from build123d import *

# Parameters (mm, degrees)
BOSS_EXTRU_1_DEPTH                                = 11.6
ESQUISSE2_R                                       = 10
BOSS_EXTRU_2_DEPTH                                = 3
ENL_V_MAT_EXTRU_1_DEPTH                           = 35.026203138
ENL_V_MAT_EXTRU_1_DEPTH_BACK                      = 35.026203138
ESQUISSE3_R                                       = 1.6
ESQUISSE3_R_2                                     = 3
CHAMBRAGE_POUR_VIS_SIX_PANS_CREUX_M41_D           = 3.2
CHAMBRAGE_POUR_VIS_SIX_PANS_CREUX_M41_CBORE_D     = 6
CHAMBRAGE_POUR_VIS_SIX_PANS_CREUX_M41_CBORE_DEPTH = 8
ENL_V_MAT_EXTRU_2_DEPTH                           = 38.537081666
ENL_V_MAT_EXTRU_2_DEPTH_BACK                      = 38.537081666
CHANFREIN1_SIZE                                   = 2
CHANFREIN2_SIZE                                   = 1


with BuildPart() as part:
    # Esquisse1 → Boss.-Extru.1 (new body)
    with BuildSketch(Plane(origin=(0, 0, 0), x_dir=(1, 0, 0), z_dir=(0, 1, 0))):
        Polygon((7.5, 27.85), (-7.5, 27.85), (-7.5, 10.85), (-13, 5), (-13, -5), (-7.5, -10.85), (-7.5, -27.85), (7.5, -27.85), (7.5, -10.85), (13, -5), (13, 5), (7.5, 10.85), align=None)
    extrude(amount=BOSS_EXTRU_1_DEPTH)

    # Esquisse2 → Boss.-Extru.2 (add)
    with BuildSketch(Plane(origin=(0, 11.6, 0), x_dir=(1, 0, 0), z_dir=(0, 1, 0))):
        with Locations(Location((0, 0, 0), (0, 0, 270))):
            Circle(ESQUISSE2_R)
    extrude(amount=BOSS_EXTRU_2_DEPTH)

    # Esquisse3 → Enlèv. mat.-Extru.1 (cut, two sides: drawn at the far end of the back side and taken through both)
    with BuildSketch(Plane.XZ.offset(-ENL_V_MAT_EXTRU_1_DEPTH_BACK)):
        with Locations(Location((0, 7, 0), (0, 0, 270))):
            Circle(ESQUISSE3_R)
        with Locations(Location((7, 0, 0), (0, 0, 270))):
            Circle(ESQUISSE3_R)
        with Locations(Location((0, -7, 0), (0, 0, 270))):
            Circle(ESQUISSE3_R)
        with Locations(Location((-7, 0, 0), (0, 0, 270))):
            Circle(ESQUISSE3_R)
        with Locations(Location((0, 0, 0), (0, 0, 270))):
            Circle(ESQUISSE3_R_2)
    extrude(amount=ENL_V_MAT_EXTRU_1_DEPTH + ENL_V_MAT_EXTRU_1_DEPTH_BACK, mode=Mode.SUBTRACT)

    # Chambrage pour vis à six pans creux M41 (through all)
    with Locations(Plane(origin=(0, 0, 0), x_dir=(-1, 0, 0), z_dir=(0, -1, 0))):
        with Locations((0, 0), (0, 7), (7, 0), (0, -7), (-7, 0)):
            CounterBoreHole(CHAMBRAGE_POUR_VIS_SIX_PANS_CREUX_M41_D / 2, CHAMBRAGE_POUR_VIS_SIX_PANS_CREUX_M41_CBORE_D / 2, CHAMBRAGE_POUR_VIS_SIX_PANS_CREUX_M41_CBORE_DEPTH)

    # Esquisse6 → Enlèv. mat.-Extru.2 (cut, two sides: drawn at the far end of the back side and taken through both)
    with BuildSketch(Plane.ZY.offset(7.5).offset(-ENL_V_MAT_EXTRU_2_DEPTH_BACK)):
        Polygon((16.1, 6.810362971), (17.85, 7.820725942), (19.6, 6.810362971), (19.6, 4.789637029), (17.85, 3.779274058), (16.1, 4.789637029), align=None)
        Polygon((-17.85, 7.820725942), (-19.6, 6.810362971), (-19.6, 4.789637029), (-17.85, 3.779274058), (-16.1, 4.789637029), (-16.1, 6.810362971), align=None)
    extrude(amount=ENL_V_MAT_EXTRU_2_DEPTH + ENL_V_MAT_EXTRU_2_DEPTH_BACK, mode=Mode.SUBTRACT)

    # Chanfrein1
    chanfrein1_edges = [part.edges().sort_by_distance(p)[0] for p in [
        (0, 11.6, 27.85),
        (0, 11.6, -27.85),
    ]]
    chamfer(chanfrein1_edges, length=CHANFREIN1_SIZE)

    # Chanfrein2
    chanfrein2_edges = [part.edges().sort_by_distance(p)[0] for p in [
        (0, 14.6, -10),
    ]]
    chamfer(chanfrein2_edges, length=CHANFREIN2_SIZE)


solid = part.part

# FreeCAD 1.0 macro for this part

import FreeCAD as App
import Part
import Sketcher

V = App.Vector
Q = App.Units.Quantity


def edges_at(feature, points):
    """Names of the edges that pass closest to the given points."""
    edges = feature.Shape.Edges
    near = lambda p: min(range(len(edges)), key=lambda i: edges[i].distToShape(Part.Vertex(*p))[0])
    return sorted({f"Edge{near(p) + 1}" for p in points})

doc = App.newDocument("Part")
body = doc.addObject("PartDesign::Body", "Body")

# Sketch on XZ plane
sketch1 = body.newObject("Sketcher::SketchObject", "Sketch")
sketch1.AttachmentSupport = (doc.getObject("XZ_Plane"), [""])
sketch1.MapMode = "FlatFace"
sketch1.addGeometry([
    Part.LineSegment(V(8, -28, 0), V(-8, -28, 0)),  # 0
    Part.LineSegment(V(-8, -28, 0), V(-8, -11, 0)),  # 1
    Part.LineSegment(V(-8, -11, 0), V(-13, -5, 0)),  # 2
    Part.LineSegment(V(-13, -5, 0), V(-13, 5, 0)),  # 3
    Part.LineSegment(V(-13, 5, 0), V(-8, 11, 0)),  # 4
    Part.LineSegment(V(-8, 11, 0), V(-8, 28, 0)),  # 5
    Part.LineSegment(V(-8, 28, 0), V(8, 28, 0)),  # 6
    Part.LineSegment(V(8, 28, 0), V(8, 11, 0)),  # 7
    Part.LineSegment(V(8, 11, 0), V(13, 5, 0)),  # 8
    Part.LineSegment(V(13, 5, 0), V(13, -5, 0)),  # 9
    Part.LineSegment(V(13, -5, 0), V(8, -11, 0)),  # 10
    Part.LineSegment(V(8, -11, 0), V(8, -28, 0)),  # 11
], False)
sketch1.addConstraint([
    Sketcher.Constraint("Coincident", 0, 2, 1, 1),
    Sketcher.Constraint("Coincident", 1, 2, 2, 1),
    Sketcher.Constraint("Coincident", 2, 2, 3, 1),
    Sketcher.Constraint("Coincident", 3, 2, 4, 1),
    Sketcher.Constraint("Coincident", 4, 2, 5, 1),
    Sketcher.Constraint("Coincident", 5, 2, 6, 1),
    Sketcher.Constraint("Coincident", 6, 2, 7, 1),
    Sketcher.Constraint("Coincident", 7, 2, 8, 1),
    Sketcher.Constraint("Coincident", 8, 2, 9, 1),
    Sketcher.Constraint("Coincident", 9, 2, 10, 1),
    Sketcher.Constraint("Coincident", 10, 2, 11, 1),
    Sketcher.Constraint("Coincident", 11, 2, 0, 1),
    Sketcher.Constraint("Horizontal", 0),
    Sketcher.Constraint("Vertical", 1),
    Sketcher.Constraint("Vertical", 3),
    Sketcher.Constraint("Vertical", 5),
    Sketcher.Constraint("Horizontal", 6),
    Sketcher.Constraint("Vertical", 7),
    Sketcher.Constraint("Vertical", 9),
    Sketcher.Constraint("Vertical", 11),
    Sketcher.Constraint("Symmetric", 0, 2, 6, 2, -1, 1),
    Sketcher.Constraint("Symmetric", 2, 2, 8, 2, -1, 1),
    Sketcher.Constraint("Symmetric", 4, 2, 10, 2, -1, 1),
    Sketcher.Constraint("Symmetric", 4, 2, 7, 2, -2),
    Sketcher.Constraint("Parallel", 2, 8),
    Sketcher.Constraint("Parallel", 4, 10),
    Sketcher.Constraint("Horizontal", 3, 2, 8, 2),
    Sketcher.Constraint("DistanceX", 0, 2, 0, 1, Q("15 mm")),
    Sketcher.Constraint("DistanceY", 1, 1, 1, 2, Q("17 mm")),
    Sketcher.Constraint("DistanceY", 3, 1, 3, 2, Q("10 mm")),
    Sketcher.Constraint("DistanceX", 2, 2, -1, 1, Q("13 mm")),
    Sketcher.Constraint("DistanceY", 1, 2, 4, 2, Q("21.7 mm")),
])
pad1 = body.newObject("PartDesign::Pad", "Pad")
pad1.Profile = sketch1
pad1.Length = 11.6
pad1.Reversed = True

# Sketch on XZ plane
sketch2 = body.newObject("Sketcher::SketchObject", "Sketch001")
sketch2.AttachmentSupport = (doc.getObject("XZ_Plane"), [""])
sketch2.MapMode = "FlatFace"
sketch2.AttachmentOffset = App.Placement(V(0, 0, -11.6), App.Rotation())
sketch2.addGeometry(Part.Circle(V(0, 0, 0), V(0, 0, 1), 10), False)
sketch2.addConstraint([
    Sketcher.Constraint("Coincident", 0, 3, -1, 1),
    Sketcher.Constraint("Diameter", 0, Q("20 mm")),
])
pad2 = body.newObject("PartDesign::Pad", "Pad001")
pad2.Profile = sketch2
pad2.Length = 3
pad2.Reversed = True

# Sketch on XZ plane
sketch3 = body.newObject("Sketcher::SketchObject", "Sketch002")
sketch3.AttachmentSupport = (doc.getObject("XZ_Plane"), [""])
sketch3.MapMode = "FlatFace"
sketch3.addGeometry([
    Part.Circle(V(0, 7, 0), V(0, 0, 1), 1.6),  # 0
    Part.Circle(V(7, 0, 0), V(0, 0, 1), 1.6),  # 1
    Part.Circle(V(0, -7, 0), V(0, 0, 1), 1.6),  # 2
    Part.Circle(V(-7, 0, 0), V(0, 0, 1), 1.6),  # 3
    Part.Circle(V(0, 0, 0), V(0, 0, 1), 3),  # 4
], False)
sketch3.addConstraint([
    Sketcher.Constraint("Coincident", 4, 3, -1, 1),
    Sketcher.Constraint("Equal", 0, 1),
    Sketcher.Constraint("Equal", 1, 2),
    Sketcher.Constraint("Equal", 2, 3),
    Sketcher.Constraint("Symmetric", 0, 3, 2, 3, -1, 1),
    Sketcher.Constraint("Symmetric", 1, 3, 3, 3, -1, 1),
    Sketcher.Constraint("PointOnObject", 0, 3, -2),
    Sketcher.Constraint("PointOnObject", 1, 3, -1),
    Sketcher.Constraint("Diameter", 4, Q("6 mm")),
    Sketcher.Constraint("Diameter", 0, Q("3.2 mm")),
    Sketcher.Constraint("DistanceY", -1, 1, 0, 3, Q("7 mm")),
    Sketcher.Constraint("DistanceX", -1, 1, 1, 3, Q("7 mm")),
])
pocket1 = body.newObject("PartDesign::Pocket", "Pocket")
pocket1.Profile = sketch3
pocket1.Type = "ThroughAll"
pocket1.Midplane = True

# Sketch on XZ plane
sketch4 = body.newObject("Sketcher::SketchObject", "Sketch003")
sketch4.AttachmentSupport = (doc.getObject("XZ_Plane"), [""])
sketch4.MapMode = "FlatFace"
sketch4.addGeometry([
    Part.Circle(V(0, 0, 0), V(0, 0, 1), 1.6),  # 0
    Part.Circle(V(0, -7, 0), V(0, 0, 1), 1.6),  # 1
    Part.Circle(V(-7, 0, 0), V(0, 0, 1), 1.6),  # 2
    Part.Circle(V(0, 7, 0), V(0, 0, 1), 1.6),  # 3
    Part.Circle(V(7, 0, 0), V(0, 0, 1), 1.6),  # 4
], False)
sketch4.addConstraint([
    Sketcher.Constraint("Coincident", 0, 3, -1, 1),
    Sketcher.Constraint("Equal", 0, 1),
    Sketcher.Constraint("Equal", 1, 2),
    Sketcher.Constraint("Equal", 2, 3),
    Sketcher.Constraint("Equal", 3, 4),
    Sketcher.Constraint("Symmetric", 1, 3, 3, 3, -1, 1),
    Sketcher.Constraint("Symmetric", 2, 3, 4, 3, -1, 1),
    Sketcher.Constraint("PointOnObject", 1, 3, -2),
    Sketcher.Constraint("PointOnObject", 2, 3, -1),
    Sketcher.Constraint("Diameter", 0, Q("3.2 mm")),
    Sketcher.Constraint("DistanceY", 1, 3, -1, 1, Q("7 mm")),
    Sketcher.Constraint("DistanceX", 2, 3, -1, 1, Q("7 mm")),
])
doc.recompute()
hole = body.newObject("PartDesign::Hole", "Hole")
hole.Profile = sketch4
hole.ThreadType = "None"
hole.Diameter = 3.2
hole.DepthType = "ThroughAll"
hole.HoleCutType = "Counterbore"
hole.HoleCutDiameter = 6
hole.HoleCutDepth = 8

# Sketch on YZ plane
sketch5 = body.newObject("Sketcher::SketchObject", "Sketch004")
sketch5.AttachmentSupport = (doc.getObject("YZ_Plane"), [""])
sketch5.MapMode = "FlatFace"
sketch5.AttachmentOffset = App.Placement(V(0, 0, -7.5), App.Rotation())
sketch5.addGeometry([
    Part.LineSegment(V(7.8, 17.9, 0), V(6.8, 16.1, 0)),  # 0
    Part.LineSegment(V(6.8, 16.1, 0), V(4.8, 16.1, 0)),  # 1
    Part.LineSegment(V(4.8, 16.1, 0), V(3.8, 17.9, 0)),  # 2
    Part.LineSegment(V(3.8, 17.9, 0), V(4.8, 19.6, 0)),  # 3
    Part.LineSegment(V(4.8, 19.6, 0), V(6.8, 19.6, 0)),  # 4
    Part.LineSegment(V(6.8, 19.6, 0), V(7.8, 17.9, 0)),  # 5
    Part.LineSegment(V(7.8, -17.9, 0), V(6.8, -19.6, 0)),  # 6
    Part.LineSegment(V(6.8, -19.6, 0), V(4.8, -19.6, 0)),  # 7
    Part.LineSegment(V(4.8, -19.6, 0), V(3.8, -17.9, 0)),  # 8
    Part.LineSegment(V(3.8, -17.9, 0), V(4.8, -16.1, 0)),  # 9
    Part.LineSegment(V(4.8, -16.1, 0), V(6.8, -16.1, 0)),  # 10
    Part.LineSegment(V(6.8, -16.1, 0), V(7.8, -17.9, 0)),  # 11
], False)
sketch5.addConstraint([
    Sketcher.Constraint("Coincident", 0, 2, 1, 1),
    Sketcher.Constraint("Coincident", 1, 2, 2, 1),
    Sketcher.Constraint("Coincident", 2, 2, 3, 1),
    Sketcher.Constraint("Coincident", 3, 2, 4, 1),
    Sketcher.Constraint("Coincident", 4, 2, 5, 1),
    Sketcher.Constraint("Coincident", 5, 2, 0, 1),
    Sketcher.Constraint("Coincident", 6, 2, 7, 1),
    Sketcher.Constraint("Coincident", 7, 2, 8, 1),
    Sketcher.Constraint("Coincident", 8, 2, 9, 1),
    Sketcher.Constraint("Coincident", 9, 2, 10, 1),
    Sketcher.Constraint("Coincident", 10, 2, 11, 1),
    Sketcher.Constraint("Coincident", 11, 2, 6, 1),
    Sketcher.Constraint("Horizontal", 1),
    Sketcher.Constraint("Horizontal", 4),
    Sketcher.Constraint("Horizontal", 7),
    Sketcher.Constraint("Horizontal", 10),
    Sketcher.Constraint("Symmetric", 4, 2, 6, 2, -1),
    Sketcher.Constraint("Symmetric", 2, 2, 8, 2, -1),
    Sketcher.Constraint("Symmetric", 1, 2, 9, 2, -1),
    Sketcher.Constraint("Symmetric", 5, 2, 11, 2, -1),
    Sketcher.Constraint("Parallel", 0, 3),
    Sketcher.Constraint("Parallel", 2, 5),
    Sketcher.Constraint("Parallel", 3, 6),
    Sketcher.Constraint("Parallel", 5, 8),
    Sketcher.Constraint("Parallel", 8, 11),
    Sketcher.Constraint("Horizontal", 2, 2, 5, 2),
    Sketcher.Constraint("Vertical", 1, 2, 3, 2),
    Sketcher.Constraint("Angle", 0, Q("-120 deg")),
    Sketcher.Constraint("DistanceY", -1, 1, 0, 2, Q("16.1 mm")),
    Sketcher.Constraint("DistanceY", -1, 1, 3, 2, Q("19.6 mm")),
    Sketcher.Constraint("DistanceX", 1, 2, 1, 1, Q("2.020726 mm")),
    Sketcher.Constraint("DistanceX", -1, 1, 0, 2, Q("6.810363 mm")),
])
pocket2 = body.newObject("PartDesign::Pocket", "Pocket001")
pocket2.Profile = sketch5
pocket2.Type = "ThroughAll"
pocket2.Midplane = True
doc.recompute()

chamfer = body.newObject("PartDesign::Chamfer", "Chamfer")
chamfer.Base = (pocket2, edges_at(pocket2, [(0, 11.6, 27.85), (0, 11.6, -27.85)]))
chamfer.Size = 2
doc.recompute()

chamfer2 = body.newObject("PartDesign::Chamfer", "Chamfer001")
chamfer2.Base = (chamfer, edges_at(chamfer, [(0, 14.6, -10)]))
chamfer2.Size = 1

doc.recompute()
